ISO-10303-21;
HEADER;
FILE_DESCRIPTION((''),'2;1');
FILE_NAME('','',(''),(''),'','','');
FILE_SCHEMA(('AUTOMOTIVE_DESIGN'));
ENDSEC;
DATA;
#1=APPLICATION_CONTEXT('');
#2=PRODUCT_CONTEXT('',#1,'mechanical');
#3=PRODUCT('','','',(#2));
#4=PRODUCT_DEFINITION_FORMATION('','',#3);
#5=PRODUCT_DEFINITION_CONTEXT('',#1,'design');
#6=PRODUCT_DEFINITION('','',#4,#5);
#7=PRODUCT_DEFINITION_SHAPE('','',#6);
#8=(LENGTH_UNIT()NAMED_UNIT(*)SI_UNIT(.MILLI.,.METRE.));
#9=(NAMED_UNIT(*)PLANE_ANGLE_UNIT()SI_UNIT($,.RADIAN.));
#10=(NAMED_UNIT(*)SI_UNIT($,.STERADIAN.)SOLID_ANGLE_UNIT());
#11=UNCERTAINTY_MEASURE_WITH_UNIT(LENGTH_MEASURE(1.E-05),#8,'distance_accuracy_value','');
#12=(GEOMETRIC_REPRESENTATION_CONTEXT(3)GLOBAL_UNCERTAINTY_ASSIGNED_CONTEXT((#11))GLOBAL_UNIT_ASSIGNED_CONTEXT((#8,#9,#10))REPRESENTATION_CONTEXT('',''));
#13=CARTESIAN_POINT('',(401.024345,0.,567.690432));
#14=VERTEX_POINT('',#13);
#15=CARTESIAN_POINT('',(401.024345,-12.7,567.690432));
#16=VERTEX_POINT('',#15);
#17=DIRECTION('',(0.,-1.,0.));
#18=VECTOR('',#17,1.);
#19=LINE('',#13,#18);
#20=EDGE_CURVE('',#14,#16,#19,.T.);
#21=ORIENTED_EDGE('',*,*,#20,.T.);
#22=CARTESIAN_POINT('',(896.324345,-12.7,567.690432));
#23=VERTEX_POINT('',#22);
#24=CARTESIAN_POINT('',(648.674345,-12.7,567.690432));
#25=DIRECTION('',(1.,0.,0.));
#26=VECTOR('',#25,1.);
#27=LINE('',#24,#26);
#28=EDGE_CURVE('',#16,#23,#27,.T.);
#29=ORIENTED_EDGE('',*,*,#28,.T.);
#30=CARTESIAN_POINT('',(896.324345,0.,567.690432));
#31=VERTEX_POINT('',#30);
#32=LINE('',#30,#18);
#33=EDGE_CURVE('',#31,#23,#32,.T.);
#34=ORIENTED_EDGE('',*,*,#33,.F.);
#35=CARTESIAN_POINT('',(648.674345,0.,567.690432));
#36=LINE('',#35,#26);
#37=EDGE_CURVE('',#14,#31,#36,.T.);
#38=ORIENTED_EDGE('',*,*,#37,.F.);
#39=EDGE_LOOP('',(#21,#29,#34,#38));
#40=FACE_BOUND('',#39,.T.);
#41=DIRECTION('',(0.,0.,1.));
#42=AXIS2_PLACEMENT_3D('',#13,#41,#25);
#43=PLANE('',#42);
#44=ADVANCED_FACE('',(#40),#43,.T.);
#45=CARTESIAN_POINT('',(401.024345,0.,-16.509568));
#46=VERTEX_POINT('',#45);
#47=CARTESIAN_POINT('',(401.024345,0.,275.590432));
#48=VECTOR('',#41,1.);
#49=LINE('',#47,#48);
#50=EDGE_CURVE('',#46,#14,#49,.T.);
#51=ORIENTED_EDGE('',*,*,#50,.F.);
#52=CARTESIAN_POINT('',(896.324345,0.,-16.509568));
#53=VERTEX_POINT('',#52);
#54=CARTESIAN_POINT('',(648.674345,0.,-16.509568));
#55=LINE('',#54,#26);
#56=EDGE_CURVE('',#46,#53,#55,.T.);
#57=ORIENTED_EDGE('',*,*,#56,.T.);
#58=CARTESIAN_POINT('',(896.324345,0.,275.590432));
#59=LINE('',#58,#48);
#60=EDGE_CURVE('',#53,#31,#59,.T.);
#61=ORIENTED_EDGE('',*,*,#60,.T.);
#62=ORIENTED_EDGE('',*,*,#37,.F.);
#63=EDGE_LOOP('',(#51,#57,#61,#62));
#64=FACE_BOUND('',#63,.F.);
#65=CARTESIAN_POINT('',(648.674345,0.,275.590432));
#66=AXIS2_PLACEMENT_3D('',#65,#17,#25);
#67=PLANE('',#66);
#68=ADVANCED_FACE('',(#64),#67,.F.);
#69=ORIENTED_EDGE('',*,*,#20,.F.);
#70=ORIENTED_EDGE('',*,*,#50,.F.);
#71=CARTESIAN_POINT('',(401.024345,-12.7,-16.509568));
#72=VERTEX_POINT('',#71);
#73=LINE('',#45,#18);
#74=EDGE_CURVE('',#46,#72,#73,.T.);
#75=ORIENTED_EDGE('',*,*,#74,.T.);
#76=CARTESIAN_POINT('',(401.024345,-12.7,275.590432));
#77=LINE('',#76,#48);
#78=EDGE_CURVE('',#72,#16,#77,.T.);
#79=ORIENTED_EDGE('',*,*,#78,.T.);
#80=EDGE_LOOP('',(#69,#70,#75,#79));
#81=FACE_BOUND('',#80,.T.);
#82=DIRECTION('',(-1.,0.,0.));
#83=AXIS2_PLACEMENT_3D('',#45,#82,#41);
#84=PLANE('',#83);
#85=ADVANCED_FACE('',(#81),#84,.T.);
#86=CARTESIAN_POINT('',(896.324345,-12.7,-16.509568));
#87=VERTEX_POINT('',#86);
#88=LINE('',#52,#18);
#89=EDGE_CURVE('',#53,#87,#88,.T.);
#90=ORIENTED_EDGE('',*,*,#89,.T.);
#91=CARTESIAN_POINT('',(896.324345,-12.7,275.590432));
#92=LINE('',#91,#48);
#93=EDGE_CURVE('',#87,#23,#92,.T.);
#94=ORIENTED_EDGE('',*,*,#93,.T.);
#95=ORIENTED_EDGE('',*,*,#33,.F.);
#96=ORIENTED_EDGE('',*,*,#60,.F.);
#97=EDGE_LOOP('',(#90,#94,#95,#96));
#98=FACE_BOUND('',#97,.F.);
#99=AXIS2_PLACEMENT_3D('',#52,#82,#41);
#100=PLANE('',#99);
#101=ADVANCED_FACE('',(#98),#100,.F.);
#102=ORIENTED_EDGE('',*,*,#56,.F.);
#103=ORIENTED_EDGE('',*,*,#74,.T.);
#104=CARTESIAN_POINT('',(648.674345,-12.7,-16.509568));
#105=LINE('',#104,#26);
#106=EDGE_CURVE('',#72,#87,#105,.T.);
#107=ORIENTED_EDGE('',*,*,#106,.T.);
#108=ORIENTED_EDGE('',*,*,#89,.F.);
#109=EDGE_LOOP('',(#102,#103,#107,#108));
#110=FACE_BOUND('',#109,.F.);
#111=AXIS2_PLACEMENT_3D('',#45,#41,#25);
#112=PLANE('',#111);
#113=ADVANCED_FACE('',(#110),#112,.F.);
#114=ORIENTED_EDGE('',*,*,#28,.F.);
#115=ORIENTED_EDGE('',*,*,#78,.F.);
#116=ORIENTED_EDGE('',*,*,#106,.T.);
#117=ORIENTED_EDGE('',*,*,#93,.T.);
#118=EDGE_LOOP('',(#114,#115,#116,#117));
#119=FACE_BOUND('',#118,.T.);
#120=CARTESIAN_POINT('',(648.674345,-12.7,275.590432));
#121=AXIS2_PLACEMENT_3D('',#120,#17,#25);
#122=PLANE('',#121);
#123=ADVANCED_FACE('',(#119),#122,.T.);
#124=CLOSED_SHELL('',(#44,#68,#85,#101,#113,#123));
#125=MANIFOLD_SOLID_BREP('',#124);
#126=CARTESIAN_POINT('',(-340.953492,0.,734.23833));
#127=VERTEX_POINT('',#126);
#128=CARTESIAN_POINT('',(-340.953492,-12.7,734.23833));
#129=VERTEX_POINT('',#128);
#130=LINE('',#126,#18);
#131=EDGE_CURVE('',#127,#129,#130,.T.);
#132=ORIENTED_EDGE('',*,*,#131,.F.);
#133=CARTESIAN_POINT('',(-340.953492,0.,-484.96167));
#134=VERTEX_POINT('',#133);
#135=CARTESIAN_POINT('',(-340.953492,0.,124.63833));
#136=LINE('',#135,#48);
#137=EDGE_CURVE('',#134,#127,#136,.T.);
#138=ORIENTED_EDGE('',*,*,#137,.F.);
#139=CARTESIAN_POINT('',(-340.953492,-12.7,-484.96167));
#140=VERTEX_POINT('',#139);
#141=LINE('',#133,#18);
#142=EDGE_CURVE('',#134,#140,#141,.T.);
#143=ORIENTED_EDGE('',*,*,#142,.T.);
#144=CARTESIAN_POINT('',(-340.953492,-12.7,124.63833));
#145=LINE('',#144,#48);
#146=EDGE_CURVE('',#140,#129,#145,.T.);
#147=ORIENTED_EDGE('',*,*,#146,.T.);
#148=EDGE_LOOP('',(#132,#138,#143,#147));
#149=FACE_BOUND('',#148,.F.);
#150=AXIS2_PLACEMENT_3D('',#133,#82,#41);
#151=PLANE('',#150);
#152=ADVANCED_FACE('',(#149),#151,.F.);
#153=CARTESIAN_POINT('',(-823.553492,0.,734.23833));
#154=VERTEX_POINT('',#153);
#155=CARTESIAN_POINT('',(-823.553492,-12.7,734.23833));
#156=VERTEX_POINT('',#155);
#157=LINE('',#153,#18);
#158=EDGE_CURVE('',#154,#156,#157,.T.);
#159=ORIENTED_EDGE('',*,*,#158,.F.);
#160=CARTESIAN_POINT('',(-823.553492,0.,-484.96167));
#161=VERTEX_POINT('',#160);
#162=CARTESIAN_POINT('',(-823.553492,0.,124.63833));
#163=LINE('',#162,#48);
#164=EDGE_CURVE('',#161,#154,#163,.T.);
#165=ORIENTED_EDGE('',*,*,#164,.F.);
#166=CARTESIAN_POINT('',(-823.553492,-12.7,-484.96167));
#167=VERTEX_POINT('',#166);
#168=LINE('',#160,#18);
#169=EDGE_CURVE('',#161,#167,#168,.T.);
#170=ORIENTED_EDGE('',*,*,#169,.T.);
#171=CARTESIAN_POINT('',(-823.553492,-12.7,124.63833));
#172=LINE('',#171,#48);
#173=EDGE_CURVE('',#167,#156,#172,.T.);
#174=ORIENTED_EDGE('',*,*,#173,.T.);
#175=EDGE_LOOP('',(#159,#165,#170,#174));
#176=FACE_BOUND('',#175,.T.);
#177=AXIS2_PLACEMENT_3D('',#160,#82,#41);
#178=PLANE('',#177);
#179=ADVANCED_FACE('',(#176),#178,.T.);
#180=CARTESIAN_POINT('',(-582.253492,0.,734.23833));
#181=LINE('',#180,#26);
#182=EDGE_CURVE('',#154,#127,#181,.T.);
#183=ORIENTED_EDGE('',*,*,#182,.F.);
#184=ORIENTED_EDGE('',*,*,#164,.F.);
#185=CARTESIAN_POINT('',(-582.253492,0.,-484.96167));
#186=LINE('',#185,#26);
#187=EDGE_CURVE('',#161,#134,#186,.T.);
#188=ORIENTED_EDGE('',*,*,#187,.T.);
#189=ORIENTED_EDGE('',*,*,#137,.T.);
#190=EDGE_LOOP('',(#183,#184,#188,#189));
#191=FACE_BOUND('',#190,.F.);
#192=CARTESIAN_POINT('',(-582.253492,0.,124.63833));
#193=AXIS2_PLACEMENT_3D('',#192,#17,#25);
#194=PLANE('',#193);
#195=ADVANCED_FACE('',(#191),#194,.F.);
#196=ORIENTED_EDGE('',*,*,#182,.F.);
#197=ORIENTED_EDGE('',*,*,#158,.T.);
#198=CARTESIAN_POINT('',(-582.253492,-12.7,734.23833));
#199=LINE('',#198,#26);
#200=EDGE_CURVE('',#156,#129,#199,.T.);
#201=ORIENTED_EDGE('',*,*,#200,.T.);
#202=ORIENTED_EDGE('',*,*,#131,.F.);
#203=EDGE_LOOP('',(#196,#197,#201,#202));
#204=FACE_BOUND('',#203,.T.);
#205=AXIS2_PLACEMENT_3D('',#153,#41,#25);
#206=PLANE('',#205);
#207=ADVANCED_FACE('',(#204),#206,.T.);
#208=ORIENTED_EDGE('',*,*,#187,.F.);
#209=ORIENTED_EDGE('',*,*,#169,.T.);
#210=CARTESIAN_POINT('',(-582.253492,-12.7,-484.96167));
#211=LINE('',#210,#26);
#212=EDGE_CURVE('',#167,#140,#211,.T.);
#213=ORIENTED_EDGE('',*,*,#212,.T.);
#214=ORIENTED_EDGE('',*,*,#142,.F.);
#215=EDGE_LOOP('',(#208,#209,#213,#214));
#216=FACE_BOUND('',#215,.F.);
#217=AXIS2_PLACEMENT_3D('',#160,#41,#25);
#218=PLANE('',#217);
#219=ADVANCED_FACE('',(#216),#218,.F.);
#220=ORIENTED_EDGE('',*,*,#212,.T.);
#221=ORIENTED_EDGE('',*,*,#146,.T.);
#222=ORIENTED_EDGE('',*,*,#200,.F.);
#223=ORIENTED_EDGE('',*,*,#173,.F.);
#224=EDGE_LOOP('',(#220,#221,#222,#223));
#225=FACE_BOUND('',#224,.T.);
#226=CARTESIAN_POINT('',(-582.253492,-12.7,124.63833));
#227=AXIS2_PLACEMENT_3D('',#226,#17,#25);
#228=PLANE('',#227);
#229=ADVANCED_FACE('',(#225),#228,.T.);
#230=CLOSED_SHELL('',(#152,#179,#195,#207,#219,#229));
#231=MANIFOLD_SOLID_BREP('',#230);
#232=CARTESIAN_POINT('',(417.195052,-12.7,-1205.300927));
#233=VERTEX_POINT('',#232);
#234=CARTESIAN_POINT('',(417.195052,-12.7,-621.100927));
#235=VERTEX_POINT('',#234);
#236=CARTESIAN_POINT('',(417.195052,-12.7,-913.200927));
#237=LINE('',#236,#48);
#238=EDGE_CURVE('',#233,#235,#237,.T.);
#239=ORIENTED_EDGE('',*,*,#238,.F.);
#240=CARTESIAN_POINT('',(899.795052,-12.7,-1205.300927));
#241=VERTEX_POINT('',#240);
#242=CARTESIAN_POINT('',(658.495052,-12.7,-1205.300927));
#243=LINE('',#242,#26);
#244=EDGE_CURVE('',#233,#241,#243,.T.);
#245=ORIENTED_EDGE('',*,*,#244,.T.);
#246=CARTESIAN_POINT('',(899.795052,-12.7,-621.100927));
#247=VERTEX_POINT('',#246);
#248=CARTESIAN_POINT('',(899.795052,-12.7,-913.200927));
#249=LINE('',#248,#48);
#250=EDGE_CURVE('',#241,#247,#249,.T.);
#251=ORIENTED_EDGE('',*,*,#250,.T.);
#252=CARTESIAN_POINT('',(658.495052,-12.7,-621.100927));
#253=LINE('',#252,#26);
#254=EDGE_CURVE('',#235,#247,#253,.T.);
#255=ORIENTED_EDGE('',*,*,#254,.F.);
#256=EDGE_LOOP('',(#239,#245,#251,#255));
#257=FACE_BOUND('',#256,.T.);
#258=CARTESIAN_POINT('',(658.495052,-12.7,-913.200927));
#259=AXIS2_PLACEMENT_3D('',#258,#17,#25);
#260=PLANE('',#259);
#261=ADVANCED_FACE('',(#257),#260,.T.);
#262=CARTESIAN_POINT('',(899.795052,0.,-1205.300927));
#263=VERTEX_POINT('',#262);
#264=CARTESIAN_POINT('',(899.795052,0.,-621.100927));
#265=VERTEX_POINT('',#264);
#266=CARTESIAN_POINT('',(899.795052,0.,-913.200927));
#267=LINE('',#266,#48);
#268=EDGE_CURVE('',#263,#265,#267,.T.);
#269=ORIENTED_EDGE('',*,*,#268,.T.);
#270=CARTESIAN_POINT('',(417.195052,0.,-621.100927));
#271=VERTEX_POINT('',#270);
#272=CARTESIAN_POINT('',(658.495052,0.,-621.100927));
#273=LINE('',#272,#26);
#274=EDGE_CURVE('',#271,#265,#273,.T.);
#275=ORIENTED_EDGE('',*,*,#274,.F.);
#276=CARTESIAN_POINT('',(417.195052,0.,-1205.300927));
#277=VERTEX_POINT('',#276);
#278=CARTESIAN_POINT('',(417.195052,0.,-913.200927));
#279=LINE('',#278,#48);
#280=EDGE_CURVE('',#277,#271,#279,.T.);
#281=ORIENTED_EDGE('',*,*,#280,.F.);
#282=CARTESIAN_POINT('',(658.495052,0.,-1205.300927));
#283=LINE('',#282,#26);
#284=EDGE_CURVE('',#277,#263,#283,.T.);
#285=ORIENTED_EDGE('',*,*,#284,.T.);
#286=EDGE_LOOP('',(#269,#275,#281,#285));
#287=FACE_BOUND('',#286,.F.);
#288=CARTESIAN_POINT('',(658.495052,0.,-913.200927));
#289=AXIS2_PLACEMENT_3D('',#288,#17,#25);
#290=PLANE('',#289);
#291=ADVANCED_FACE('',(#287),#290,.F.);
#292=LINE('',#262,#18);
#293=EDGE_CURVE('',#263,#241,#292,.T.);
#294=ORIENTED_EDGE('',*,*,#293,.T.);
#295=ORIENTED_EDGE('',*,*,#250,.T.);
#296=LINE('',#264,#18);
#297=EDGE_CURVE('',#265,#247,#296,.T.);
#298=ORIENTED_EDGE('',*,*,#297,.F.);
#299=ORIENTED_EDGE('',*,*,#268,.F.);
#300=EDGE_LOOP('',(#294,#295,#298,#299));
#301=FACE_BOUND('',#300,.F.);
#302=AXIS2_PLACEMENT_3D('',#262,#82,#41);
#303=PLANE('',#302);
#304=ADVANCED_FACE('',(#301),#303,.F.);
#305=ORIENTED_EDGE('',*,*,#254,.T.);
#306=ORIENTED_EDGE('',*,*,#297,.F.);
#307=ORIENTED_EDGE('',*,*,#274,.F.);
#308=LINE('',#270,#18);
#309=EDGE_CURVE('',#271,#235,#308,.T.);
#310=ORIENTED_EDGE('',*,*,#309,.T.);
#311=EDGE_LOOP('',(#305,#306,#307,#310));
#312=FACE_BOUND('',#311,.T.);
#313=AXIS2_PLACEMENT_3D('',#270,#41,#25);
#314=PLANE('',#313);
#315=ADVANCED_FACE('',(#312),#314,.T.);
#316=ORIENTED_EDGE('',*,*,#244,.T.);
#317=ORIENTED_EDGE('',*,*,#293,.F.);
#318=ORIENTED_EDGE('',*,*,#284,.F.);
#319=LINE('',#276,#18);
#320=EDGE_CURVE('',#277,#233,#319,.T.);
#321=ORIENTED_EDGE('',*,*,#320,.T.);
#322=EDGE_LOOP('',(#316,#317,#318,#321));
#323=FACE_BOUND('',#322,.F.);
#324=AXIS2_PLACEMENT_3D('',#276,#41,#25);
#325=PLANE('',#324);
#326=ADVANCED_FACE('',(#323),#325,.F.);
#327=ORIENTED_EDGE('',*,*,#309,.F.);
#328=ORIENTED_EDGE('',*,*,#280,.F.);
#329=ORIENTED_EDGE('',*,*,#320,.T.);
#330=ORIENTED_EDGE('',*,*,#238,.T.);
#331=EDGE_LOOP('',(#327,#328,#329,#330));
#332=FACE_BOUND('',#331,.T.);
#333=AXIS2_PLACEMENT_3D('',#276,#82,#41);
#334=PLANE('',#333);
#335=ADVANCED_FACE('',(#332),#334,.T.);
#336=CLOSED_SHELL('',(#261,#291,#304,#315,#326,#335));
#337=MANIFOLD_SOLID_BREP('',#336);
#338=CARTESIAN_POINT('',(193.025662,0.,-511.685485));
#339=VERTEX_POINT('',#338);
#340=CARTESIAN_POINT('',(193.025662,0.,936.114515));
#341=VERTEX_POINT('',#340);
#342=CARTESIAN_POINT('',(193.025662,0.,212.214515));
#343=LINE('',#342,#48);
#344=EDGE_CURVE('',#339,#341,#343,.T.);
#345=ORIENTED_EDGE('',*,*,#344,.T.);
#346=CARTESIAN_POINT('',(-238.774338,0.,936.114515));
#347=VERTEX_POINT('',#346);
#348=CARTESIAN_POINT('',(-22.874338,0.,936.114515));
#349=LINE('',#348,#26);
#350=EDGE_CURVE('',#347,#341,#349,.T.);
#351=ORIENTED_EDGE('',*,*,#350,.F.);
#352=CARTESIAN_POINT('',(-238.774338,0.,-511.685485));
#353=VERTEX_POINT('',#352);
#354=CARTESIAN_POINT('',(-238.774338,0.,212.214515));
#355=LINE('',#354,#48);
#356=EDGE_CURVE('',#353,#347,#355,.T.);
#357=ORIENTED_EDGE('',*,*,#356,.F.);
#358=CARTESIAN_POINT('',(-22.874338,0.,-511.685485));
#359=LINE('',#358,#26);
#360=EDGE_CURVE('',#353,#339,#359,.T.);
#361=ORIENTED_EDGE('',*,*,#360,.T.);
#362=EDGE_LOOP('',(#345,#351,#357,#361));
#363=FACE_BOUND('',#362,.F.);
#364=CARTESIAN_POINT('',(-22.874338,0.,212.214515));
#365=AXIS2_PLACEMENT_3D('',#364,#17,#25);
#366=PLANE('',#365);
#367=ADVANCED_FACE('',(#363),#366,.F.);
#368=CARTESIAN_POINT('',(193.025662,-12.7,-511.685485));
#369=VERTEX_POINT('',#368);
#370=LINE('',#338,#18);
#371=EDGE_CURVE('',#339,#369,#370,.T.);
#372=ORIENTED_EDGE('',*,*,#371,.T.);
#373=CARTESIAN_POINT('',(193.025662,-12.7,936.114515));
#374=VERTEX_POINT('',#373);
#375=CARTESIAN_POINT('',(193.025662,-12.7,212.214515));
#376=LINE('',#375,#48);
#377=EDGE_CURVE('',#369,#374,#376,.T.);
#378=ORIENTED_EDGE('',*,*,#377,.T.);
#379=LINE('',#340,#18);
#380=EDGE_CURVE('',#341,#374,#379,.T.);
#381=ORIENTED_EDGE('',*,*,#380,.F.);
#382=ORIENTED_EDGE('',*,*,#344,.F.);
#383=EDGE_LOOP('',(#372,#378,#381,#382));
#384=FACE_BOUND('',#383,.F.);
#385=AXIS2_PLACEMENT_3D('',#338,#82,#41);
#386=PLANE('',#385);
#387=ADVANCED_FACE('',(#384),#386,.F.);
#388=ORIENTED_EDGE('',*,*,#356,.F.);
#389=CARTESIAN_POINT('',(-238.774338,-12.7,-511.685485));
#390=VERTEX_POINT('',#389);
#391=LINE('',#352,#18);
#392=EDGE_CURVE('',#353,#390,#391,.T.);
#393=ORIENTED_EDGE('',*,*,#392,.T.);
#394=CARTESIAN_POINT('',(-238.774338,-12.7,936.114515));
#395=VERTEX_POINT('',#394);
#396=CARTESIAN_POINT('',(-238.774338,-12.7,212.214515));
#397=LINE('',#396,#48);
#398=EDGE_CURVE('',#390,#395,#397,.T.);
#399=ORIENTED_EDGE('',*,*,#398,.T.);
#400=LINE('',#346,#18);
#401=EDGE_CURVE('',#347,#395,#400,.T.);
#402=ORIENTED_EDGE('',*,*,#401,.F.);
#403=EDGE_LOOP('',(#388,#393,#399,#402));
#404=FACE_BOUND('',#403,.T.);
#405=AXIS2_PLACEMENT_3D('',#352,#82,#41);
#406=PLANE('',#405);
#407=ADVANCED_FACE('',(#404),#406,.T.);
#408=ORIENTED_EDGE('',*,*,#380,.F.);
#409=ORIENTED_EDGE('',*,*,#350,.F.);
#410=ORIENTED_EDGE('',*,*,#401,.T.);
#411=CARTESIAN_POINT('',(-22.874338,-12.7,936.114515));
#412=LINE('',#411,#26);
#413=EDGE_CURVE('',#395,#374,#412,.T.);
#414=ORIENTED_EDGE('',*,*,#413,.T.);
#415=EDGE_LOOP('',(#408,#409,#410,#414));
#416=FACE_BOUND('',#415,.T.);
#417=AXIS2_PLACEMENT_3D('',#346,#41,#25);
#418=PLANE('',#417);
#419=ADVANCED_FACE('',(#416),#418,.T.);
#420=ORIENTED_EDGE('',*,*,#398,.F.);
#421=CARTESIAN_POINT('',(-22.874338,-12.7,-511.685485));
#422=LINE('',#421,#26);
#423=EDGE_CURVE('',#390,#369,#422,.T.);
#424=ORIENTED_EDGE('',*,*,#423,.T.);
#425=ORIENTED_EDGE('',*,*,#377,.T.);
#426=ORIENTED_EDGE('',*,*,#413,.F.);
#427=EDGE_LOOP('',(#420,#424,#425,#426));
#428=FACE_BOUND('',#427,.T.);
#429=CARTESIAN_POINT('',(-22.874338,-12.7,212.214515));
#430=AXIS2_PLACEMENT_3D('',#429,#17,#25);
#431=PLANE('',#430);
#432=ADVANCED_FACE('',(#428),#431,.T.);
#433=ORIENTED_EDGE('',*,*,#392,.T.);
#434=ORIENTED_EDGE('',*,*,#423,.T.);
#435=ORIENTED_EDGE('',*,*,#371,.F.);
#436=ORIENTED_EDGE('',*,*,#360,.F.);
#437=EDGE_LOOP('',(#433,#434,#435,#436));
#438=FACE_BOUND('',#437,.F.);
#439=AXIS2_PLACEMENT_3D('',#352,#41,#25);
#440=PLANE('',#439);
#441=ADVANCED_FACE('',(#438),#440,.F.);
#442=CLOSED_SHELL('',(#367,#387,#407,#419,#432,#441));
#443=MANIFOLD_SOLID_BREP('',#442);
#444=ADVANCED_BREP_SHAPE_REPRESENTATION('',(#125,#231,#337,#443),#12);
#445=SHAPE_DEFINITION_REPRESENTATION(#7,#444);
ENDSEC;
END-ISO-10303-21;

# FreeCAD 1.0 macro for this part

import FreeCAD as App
import Part
import Sketcher
Q = App.Units.Quantity

doc = App.newDocument("Part")
params = doc.addObject("Spreadsheet::Sheet", "Params")
for row, (alias, value) in enumerate([
    ("sketch1_width", "19 in"),
    ("sketch1_width2", "17 in"),
    ("sketch1_height", "48 in"),
    ("sketch1_height2", "57 in"),
    ("sketch1_height3", "23 in"),
    ("pad1_length", "0.5 in"),
], start=1):
    params.set(f"A{row}", alias)
    params.set(f"B{row}", "=" + value)
    params.setAlias(f"B{row}", alias)

body = doc.addObject("PartDesign::Body", "Body")
body.AllowCompound = True

# Sketch on XZ plane
sketch1 = body.newObject("Sketcher::SketchObject", "Sketch")
sketch1.AttachmentSupport = (doc.getObject("XZ_Plane"), [""])
sketch1.MapMode = "FlatFace"
sketch1.addGeometry([
    Part.LineSegment(App.Vector(-823.553492, 734.23833, 0), App.Vector(-823.553492, -484.96167, 0)),  # 0
    Part.LineSegment(App.Vector(-823.553492, -484.96167, 0), App.Vector(-340.953492, -484.96167, 0)),  # 1
    Part.LineSegment(App.Vector(-340.953492, -484.96167, 0), App.Vector(-340.953492, 734.23833, 0)),  # 2
    Part.LineSegment(App.Vector(-340.953492, 734.23833, 0), App.Vector(-823.553492, 734.23833, 0)),  # 3
    Part.LineSegment(App.Vector(-238.774338, 936.114515, 0), App.Vector(-238.774338, -511.685485, 0)),  # 4
    Part.LineSegment(App.Vector(-238.774338, -511.685485, 0), App.Vector(193.025662, -511.685485, 0)),  # 5
    Part.LineSegment(App.Vector(193.025662, -511.685485, 0), App.Vector(193.025662, 936.114515, 0)),  # 6
    Part.LineSegment(App.Vector(193.025662, 936.114515, 0), App.Vector(-238.774338, 936.114515, 0)),  # 7
    Part.LineSegment(App.Vector(401.024345, 567.690432, 0), App.Vector(401.024345, -16.509568, 0)),  # 8
    Part.LineSegment(App.Vector(401.024345, -16.509568, 0), App.Vector(896.324345, -16.509568, 0)),  # 9
    Part.LineSegment(App.Vector(896.324345, -16.509568, 0), App.Vector(896.324345, 567.690432, 0)),  # 10
    Part.LineSegment(App.Vector(896.324345, 567.690432, 0), App.Vector(401.024345, 567.690432, 0)),  # 11
    Part.LineSegment(App.Vector(417.195052, -621.100927, 0), App.Vector(417.195052, -1205.300927, 0)),  # 12
    Part.LineSegment(App.Vector(417.195052, -1205.300927, 0), App.Vector(899.795052, -1205.300927, 0)),  # 13
    Part.LineSegment(App.Vector(899.795052, -1205.300927, 0), App.Vector(899.795052, -621.100927, 0)),  # 14
    Part.LineSegment(App.Vector(899.795052, -621.100927, 0), App.Vector(417.195052, -621.100927, 0)),  # 15
], False)
sketch1.addConstraint([
    Sketcher.Constraint("Coincident", 0, 2, 1, 1),
    Sketcher.Constraint("Coincident", 1, 2, 2, 1),
    Sketcher.Constraint("Coincident", 2, 2, 3, 1),
    Sketcher.Constraint("Coincident", 3, 2, 0, 1),
    Sketcher.Constraint("Coincident", 4, 2, 5, 1),
    Sketcher.Constraint("Coincident", 5, 2, 6, 1),
    Sketcher.Constraint("Coincident", 6, 2, 7, 1),
    Sketcher.Constraint("Coincident", 7, 2, 4, 1),
    Sketcher.Constraint("Coincident", 8, 2, 9, 1),
    Sketcher.Constraint("Coincident", 9, 2, 10, 1),
    Sketcher.Constraint("Coincident", 10, 2, 11, 1),
    Sketcher.Constraint("Coincident", 11, 2, 8, 1),
    Sketcher.Constraint("Coincident", 12, 2, 13, 1),
    Sketcher.Constraint("Coincident", 13, 2, 14, 1),
    Sketcher.Constraint("Coincident", 14, 2, 15, 1),
    Sketcher.Constraint("Coincident", 15, 2, 12, 1),
    Sketcher.Constraint("Vertical", 0),
    Sketcher.Constraint("Horizontal", 1),
    Sketcher.Constraint("Vertical", 2),
    Sketcher.Constraint("Horizontal", 3),
    Sketcher.Constraint("Vertical", 4),
    Sketcher.Constraint("Horizontal", 5),
    Sketcher.Constraint("Vertical", 6),
    Sketcher.Constraint("Horizontal", 7),
    Sketcher.Constraint("Vertical", 8),
    Sketcher.Constraint("Horizontal", 9),
    Sketcher.Constraint("Vertical", 10),
    Sketcher.Constraint("Horizontal", 11),
    Sketcher.Constraint("Vertical", 12),
    Sketcher.Constraint("Horizontal", 13),
    Sketcher.Constraint("Vertical", 14),
    Sketcher.Constraint("Horizontal", 15),
    Sketcher.Constraint("Equal", 3, 13),
    Sketcher.Constraint("Equal", 10, 12),
    Sketcher.Constraint("DistanceX", 1, 1, 1, 2, Q("19 in")),
    Sketcher.Constraint("DistanceX", 5, 1, 5, 2, Q("17 in")),
    Sketcher.Constraint("DistanceY", 0, 2, 0, 1, Q("48 in")),
    Sketcher.Constraint("DistanceY", 4, 2, 4, 1, Q("57 in")),
    Sketcher.Constraint("DistanceY", 8, 2, 8, 1, Q("23 in")),
    Sketcher.Constraint("DistanceX", 9, 1, 9, 2, Q("19.5 in")),
    Sketcher.Constraint("DistanceY", 8, 2, 2, 2, 750.747898),
    Sketcher.Constraint("DistanceX", 0, 2, -1, 1, 823.553492),
    Sketcher.Constraint("DistanceY", 0, 2, -1, 1, 484.96167),
    Sketcher.Constraint("DistanceX", 4, 2, -1, 1, 238.774338),
    Sketcher.Constraint("DistanceX", -1, 1, 12, 2, 417.195052),
    Sketcher.Constraint("DistanceY", 12, 2, 5, 2, 693.615442),
    Sketcher.Constraint("DistanceY", 12, 2, 8, 2, 1188.791359),
    Sketcher.Constraint("DistanceX", -1, 1, 8, 2, 401.024345),
])
sketch1.setExpression("Constraints[34]", "Params.sketch1_width")
sketch1.setExpression("Constraints[35]", "Params.sketch1_width2")
sketch1.setExpression("Constraints[36]", "Params.sketch1_height")
sketch1.setExpression("Constraints[37]", "Params.sketch1_height2")
sketch1.setExpression("Constraints[38]", "Params.sketch1_height3")
pad1 = body.newObject("PartDesign::Pad", "Pad")
pad1.Profile = sketch1
pad1.setExpression("Length", "Params.pad1_length")

doc.recompute()
